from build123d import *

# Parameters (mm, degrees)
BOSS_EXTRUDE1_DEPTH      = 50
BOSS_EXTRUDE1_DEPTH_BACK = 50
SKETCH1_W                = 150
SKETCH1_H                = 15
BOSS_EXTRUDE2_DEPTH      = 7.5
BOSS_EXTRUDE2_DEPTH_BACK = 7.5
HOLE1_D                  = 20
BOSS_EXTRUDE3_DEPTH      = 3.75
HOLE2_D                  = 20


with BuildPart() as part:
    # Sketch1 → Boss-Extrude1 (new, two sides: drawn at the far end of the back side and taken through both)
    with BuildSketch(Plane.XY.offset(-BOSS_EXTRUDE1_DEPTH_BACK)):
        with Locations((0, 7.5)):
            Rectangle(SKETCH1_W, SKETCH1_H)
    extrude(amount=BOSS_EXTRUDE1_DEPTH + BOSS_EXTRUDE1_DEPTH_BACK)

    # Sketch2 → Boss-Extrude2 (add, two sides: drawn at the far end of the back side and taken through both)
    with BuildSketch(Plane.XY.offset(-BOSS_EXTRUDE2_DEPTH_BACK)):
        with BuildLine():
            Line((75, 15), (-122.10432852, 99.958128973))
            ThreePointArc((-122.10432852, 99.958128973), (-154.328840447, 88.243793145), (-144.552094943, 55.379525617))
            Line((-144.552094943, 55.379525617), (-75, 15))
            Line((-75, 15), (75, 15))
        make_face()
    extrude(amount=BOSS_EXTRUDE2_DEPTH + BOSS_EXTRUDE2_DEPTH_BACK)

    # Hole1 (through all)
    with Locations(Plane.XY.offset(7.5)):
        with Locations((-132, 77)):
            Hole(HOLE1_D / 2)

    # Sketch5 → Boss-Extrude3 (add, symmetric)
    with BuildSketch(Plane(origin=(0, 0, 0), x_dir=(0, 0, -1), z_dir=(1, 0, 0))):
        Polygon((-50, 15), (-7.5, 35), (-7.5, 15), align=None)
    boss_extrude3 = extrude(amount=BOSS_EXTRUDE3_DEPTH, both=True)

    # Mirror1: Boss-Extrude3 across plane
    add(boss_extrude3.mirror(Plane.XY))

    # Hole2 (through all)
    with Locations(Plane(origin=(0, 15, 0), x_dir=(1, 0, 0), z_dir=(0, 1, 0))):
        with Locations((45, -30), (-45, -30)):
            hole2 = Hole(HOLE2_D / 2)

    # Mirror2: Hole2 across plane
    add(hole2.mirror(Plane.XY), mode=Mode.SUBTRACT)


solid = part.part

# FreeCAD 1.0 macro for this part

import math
import FreeCAD as App
import Part
import Sketcher
from FreeCAD import Vector
Q = App.Units.Quantity


def add_polygon(sketch, points):
    """Adds a closed chain of lines whose ends are joined by coincident constraints."""
    first, n = sketch.GeometryCount, len(points)
    for a, b in zip(points, points[1:] + points[:1]):
        sketch.addGeometry(Part.LineSegment(App.Vector(*a, 0), App.Vector(*b, 0)), False)
    for i in range(n):
        sketch.addConstraint(Sketcher.Constraint("Coincident", first + i, 2, first + (i + 1) % n, 1))

doc = App.newDocument("Part")
params = doc.addObject("Spreadsheet::Sheet", "Params")
for row, (alias, value) in enumerate([
    ("sketch1_width", "150 mm"),
    ("sketch1_height", "15 mm"),
    ("pad1_length", "50 mm"),
    ("pad1_length2", "50 mm"),
    ("sketch2_radius", "25 mm"),
    ("sketch2_width", "150 mm"),
    ("pad2_length", "7.5 mm"),
    ("pad2_length2", "7.5 mm"),
    ("sketch3_diameter", "20 mm"),
    ("hole_diameter", "20 mm"),
    ("sketch4_width", "20 mm"),
    ("sketch4_height", "42.5 mm"),
    ("pad3_length", "7.5 mm"),
    ("sketch5_diameter", "20 mm"),
    ("hole2_diameter", "20 mm"),
], start=1):
    params.set(f"A{row}", alias)
    params.set(f"B{row}", "=" + value)
    params.setAlias(f"B{row}", alias)

body = doc.addObject("PartDesign::Body", "Body")

# Sketch on XY plane
sketch1 = body.newObject("Sketcher::SketchObject", "Sketch")
sketch1.AttachmentSupport = (doc.getObject("XY_Plane"), [""])
sketch1.MapMode = "FlatFace"
add_polygon(sketch1, [(-75, 15), (-75, 0), (75, 0), (75, 15)])  # lines 0-3
sketch1.addConstraint([
    Sketcher.Constraint("Vertical", 0),
    Sketcher.Constraint("Horizontal", 1),
    Sketcher.Constraint("Vertical", 2),
    Sketcher.Constraint("Horizontal", 3),
    Sketcher.Constraint("Symmetric", 0, 2, 1, 2, -1, 1),
    Sketcher.Constraint("DistanceX", 1, 1, 1, 2, Q("150 mm")),
    Sketcher.Constraint("DistanceY", 0, 2, 0, 1, Q("15 mm")),
])
sketch1.setExpression("Constraints[9]", "Params.sketch1_width")
sketch1.setExpression("Constraints[10]", "Params.sketch1_height")
pad1 = body.newObject("PartDesign::Pad", "Pad")
pad1.Profile = sketch1
pad1.Type = "TwoLengths"
pad1.setExpression("Length", "Params.pad1_length")
pad1.setExpression("Length2", "Params.pad1_length2")

# Sketch on XY plane
sketch2 = body.newObject("Sketcher::SketchObject", "Sketch001")
sketch2.AttachmentSupport = (doc.getObject("XY_Plane"), [""])
sketch2.MapMode = "FlatFace"
sketch2.addGeometry([
    Part.LineSegment(Vector(75, 15, 0), Vector(-122, 100, 0)),
    Part.ArcOfCircle(Part.Circle(Vector(-132, 77, 0), Vector(0, 0, 1), 25), math.radians(67), math.radians(240)),
    Part.LineSegment(Vector(-145, 55, 0), Vector(-75, 15, 0)),
    Part.LineSegment(Vector(-75, 15, 0), Vector(75, 15, 0)),
], False)
sketch2.addConstraint([
    Sketcher.Constraint("Tangent", 0, 2, 1, 1),
    Sketcher.Constraint("Tangent", 1, 2, 2, 1),
    Sketcher.Constraint("Coincident", 2, 2, 3, 1),
    Sketcher.Constraint("Coincident", 3, 2, 0, 1),
    Sketcher.Constraint("Horizontal", 3),
    Sketcher.Constraint("Radius", 1, Q("25 mm")),
    Sketcher.Constraint("DistanceX", 3, 1, 3, 2, Q("150 mm")),
    Sketcher.Constraint("DistanceX", 1, 3, -1, 1, Q("132 mm")),
    Sketcher.Constraint("DistanceY", -1, 1, 1, 3, Q("77 mm")),
    Sketcher.Constraint("DistanceX", 2, 2, -1, 1, Q("75 mm")),
    Sketcher.Constraint("DistanceY", -1, 1, 2, 2, Q("15 mm")),
])
sketch2.setExpression("Constraints[5]", "Params.sketch2_radius")
sketch2.setExpression("Constraints[6]", "Params.sketch2_width")
pad2 = body.newObject("PartDesign::Pad", "Pad001")
pad2.Profile = sketch2
pad2.Type = "TwoLengths"
pad2.setExpression("Length", "Params.pad2_length")
pad2.setExpression("Length2", "Params.pad2_length2")

# Sketch on XY plane
sketch3 = body.newObject("Sketcher::SketchObject", "Sketch002")
sketch3.AttachmentSupport = (doc.getObject("XY_Plane"), [""])
sketch3.MapMode = "FlatFace"
sketch3.AttachmentOffset = App.Placement(Vector(0, 0, 7.5), App.Rotation())
sketch3.addGeometry(Part.Circle(Vector(-132, 77, 0), Vector(0, 0, 1), 10), False)
sketch3.addConstraint([
    Sketcher.Constraint("Diameter", 0, Q("20 mm")),
    Sketcher.Constraint("DistanceX", 0, 3, -1, 1, Q("132 mm")),
    Sketcher.Constraint("DistanceY", -1, 1, 0, 3, Q("77 mm")),
])
sketch3.setExpression("Constraints[0]", "Params.sketch3_diameter")
doc.recompute()
hole = body.newObject("PartDesign::Hole", "Hole")
hole.Profile = sketch3
hole.ThreadType = "None"
hole.setExpression("Diameter", "Params.hole_diameter")
hole.DepthType = "ThroughAll"

# Sketch on YZ plane
sketch4 = body.newObject("Sketcher::SketchObject", "Sketch003")
sketch4.AttachmentSupport = (doc.getObject("YZ_Plane"), [""])
sketch4.MapMode = "FlatFace"
add_polygon(sketch4, [(35, 8), (15, 50), (15, 8)])  # lines 0-2
sketch4.addConstraint([
    Sketcher.Constraint("Vertical", 1),
    Sketcher.Constraint("Horizontal", 2),
    Sketcher.Constraint("DistanceX", 2, 1, 2, 2, Q("20 mm")),
    Sketcher.Constraint("DistanceY", 1, 2, 1, 1, Q("42.5 mm")),
    Sketcher.Constraint("DistanceX", -1, 1, 0, 2, Q("15 mm")),
    Sketcher.Constraint("DistanceY", -1, 1, 0, 2, Q("50 mm")),
])
sketch4.setExpression("Constraints[5]", "Params.sketch4_width")
sketch4.setExpression("Constraints[6]", "Params.sketch4_height")
pad3 = body.newObject("PartDesign::Pad", "Pad002")
pad3.Profile = sketch4
pad3.setExpression("Length", "Params.pad3_length")
pad3.Midplane = True
doc.recompute()

mirrored = body.newObject("PartDesign::Mirrored", "Mirrored")
mirrored.Originals = [pad3]
mirrored.MirrorPlane = (doc.getObject("XY_Plane"), [""])
body.Tip = mirrored

# Sketch on XZ plane
sketch5 = body.newObject("Sketcher::SketchObject", "Sketch004")
sketch5.AttachmentSupport = (doc.getObject("XZ_Plane"), [""])
sketch5.MapMode = "FlatFace"
sketch5.AttachmentOffset = App.Placement(Vector(0, 0, -15), App.Rotation())
sketch5.addGeometry([
    Part.Circle(Vector(45, 30, 0), Vector(0, 0, 1), 10),
    Part.Circle(Vector(-45, 30, 0), Vector(0, 0, 1), 10),
], False)
sketch5.addConstraint([
    Sketcher.Constraint("Equal", 0, 1),
    Sketcher.Constraint("Symmetric", 0, 3, 1, 3, -2),
    Sketcher.Constraint("Diameter", 0, Q("20 mm")),
    Sketcher.Constraint("DistanceX", -1, 1, 0, 3, Q("45 mm")),
    Sketcher.Constraint("DistanceY", -1, 1, 0, 3, Q("30 mm")),
])
sketch5.setExpression("Constraints[2]", "Params.sketch5_diameter")
doc.recompute()
hole2 = body.newObject("PartDesign::Hole", "Hole001")
hole2.Profile = sketch5
hole2.ThreadType = "None"
hole2.setExpression("Diameter", "Params.hole2_diameter")
hole2.DepthType = "ThroughAll"
hole2.Reversed = True
doc.recompute()

mirrored2 = body.newObject("PartDesign::Mirrored", "Mirrored001")
mirrored2.Originals = [hole2]
mirrored2.MirrorPlane = (doc.getObject("XY_Plane"), [""])
body.Tip = mirrored2

doc.recompute()
